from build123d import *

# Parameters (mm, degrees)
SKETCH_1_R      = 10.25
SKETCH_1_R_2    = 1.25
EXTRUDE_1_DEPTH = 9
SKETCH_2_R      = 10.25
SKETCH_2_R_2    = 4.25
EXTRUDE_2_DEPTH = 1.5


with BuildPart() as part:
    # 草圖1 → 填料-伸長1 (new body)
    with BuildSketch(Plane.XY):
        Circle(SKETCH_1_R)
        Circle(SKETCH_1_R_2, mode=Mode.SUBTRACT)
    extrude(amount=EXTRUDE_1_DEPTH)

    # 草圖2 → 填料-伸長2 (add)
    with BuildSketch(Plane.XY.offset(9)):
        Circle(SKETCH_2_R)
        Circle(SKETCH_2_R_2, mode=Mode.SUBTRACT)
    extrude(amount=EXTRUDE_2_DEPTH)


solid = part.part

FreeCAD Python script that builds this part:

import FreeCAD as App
import Part
import Sketcher
from FreeCAD import Vector

doc = App.newDocument("Part")
body = doc.addObject("PartDesign::Body", "Body")

# Sketch on XY plane
sketch1 = doc.addObject("Sketcher::SketchObject", "Sketch")
body.addObject(sketch1)
sketch1.AttachmentSupport = (doc.XY_Plane, [""])
sketch1.MapMode = "FlatFace"
sketch1.addGeometry([
    Part.Circle(Vector(0, 0, 0), Vector(0, 0, 1), 10.2),
    Part.Circle(Vector(0, 0, 0), Vector(0, 0, 1), 1.2),
], False)
sketch1.addConstraint([
    Sketcher.Constraint("Coincident", 0, 3, -1, 1),
    Sketcher.Constraint("Coincident", 1, 3, -1, 1),
    Sketcher.Constraint("Diameter", 0, 20.5),
    Sketcher.Constraint("Diameter", 1, 2.5),
])
pad1 = doc.addObject("PartDesign::Pad", "Pad")
body.addObject(pad1)
pad1.Profile = sketch1
pad1.Length = 9

# Sketch on XY plane
sketch2 = doc.addObject("Sketcher::SketchObject", "Sketch001")
body.addObject(sketch2)
sketch2.AttachmentSupport = (doc.XY_Plane, [""])
sketch2.MapMode = "FlatFace"
sketch2.AttachmentOffset = App.Placement(Vector(0, 0, 9), App.Rotation())
sketch2.addGeometry([
    Part.Circle(Vector(0, 0, 0), Vector(0, 0, 1), 10.2),
    Part.Circle(Vector(0, 0, 0), Vector(0, 0, 1), 4.2),
], False)
sketch2.addConstraint([
    Sketcher.Constraint("Coincident", 0, 3, -1, 1),
    Sketcher.Constraint("Coincident", 1, 3, -1, 1),
    Sketcher.Constraint("Diameter", 0, 20.5),
    Sketcher.Constraint("Diameter", 1, 8.5),
])
pad2 = doc.addObject("PartDesign::Pad", "Pad001")
body.addObject(pad2)
pad2.Profile = sketch2
pad2.Length = 1.5

doc.recompute()
